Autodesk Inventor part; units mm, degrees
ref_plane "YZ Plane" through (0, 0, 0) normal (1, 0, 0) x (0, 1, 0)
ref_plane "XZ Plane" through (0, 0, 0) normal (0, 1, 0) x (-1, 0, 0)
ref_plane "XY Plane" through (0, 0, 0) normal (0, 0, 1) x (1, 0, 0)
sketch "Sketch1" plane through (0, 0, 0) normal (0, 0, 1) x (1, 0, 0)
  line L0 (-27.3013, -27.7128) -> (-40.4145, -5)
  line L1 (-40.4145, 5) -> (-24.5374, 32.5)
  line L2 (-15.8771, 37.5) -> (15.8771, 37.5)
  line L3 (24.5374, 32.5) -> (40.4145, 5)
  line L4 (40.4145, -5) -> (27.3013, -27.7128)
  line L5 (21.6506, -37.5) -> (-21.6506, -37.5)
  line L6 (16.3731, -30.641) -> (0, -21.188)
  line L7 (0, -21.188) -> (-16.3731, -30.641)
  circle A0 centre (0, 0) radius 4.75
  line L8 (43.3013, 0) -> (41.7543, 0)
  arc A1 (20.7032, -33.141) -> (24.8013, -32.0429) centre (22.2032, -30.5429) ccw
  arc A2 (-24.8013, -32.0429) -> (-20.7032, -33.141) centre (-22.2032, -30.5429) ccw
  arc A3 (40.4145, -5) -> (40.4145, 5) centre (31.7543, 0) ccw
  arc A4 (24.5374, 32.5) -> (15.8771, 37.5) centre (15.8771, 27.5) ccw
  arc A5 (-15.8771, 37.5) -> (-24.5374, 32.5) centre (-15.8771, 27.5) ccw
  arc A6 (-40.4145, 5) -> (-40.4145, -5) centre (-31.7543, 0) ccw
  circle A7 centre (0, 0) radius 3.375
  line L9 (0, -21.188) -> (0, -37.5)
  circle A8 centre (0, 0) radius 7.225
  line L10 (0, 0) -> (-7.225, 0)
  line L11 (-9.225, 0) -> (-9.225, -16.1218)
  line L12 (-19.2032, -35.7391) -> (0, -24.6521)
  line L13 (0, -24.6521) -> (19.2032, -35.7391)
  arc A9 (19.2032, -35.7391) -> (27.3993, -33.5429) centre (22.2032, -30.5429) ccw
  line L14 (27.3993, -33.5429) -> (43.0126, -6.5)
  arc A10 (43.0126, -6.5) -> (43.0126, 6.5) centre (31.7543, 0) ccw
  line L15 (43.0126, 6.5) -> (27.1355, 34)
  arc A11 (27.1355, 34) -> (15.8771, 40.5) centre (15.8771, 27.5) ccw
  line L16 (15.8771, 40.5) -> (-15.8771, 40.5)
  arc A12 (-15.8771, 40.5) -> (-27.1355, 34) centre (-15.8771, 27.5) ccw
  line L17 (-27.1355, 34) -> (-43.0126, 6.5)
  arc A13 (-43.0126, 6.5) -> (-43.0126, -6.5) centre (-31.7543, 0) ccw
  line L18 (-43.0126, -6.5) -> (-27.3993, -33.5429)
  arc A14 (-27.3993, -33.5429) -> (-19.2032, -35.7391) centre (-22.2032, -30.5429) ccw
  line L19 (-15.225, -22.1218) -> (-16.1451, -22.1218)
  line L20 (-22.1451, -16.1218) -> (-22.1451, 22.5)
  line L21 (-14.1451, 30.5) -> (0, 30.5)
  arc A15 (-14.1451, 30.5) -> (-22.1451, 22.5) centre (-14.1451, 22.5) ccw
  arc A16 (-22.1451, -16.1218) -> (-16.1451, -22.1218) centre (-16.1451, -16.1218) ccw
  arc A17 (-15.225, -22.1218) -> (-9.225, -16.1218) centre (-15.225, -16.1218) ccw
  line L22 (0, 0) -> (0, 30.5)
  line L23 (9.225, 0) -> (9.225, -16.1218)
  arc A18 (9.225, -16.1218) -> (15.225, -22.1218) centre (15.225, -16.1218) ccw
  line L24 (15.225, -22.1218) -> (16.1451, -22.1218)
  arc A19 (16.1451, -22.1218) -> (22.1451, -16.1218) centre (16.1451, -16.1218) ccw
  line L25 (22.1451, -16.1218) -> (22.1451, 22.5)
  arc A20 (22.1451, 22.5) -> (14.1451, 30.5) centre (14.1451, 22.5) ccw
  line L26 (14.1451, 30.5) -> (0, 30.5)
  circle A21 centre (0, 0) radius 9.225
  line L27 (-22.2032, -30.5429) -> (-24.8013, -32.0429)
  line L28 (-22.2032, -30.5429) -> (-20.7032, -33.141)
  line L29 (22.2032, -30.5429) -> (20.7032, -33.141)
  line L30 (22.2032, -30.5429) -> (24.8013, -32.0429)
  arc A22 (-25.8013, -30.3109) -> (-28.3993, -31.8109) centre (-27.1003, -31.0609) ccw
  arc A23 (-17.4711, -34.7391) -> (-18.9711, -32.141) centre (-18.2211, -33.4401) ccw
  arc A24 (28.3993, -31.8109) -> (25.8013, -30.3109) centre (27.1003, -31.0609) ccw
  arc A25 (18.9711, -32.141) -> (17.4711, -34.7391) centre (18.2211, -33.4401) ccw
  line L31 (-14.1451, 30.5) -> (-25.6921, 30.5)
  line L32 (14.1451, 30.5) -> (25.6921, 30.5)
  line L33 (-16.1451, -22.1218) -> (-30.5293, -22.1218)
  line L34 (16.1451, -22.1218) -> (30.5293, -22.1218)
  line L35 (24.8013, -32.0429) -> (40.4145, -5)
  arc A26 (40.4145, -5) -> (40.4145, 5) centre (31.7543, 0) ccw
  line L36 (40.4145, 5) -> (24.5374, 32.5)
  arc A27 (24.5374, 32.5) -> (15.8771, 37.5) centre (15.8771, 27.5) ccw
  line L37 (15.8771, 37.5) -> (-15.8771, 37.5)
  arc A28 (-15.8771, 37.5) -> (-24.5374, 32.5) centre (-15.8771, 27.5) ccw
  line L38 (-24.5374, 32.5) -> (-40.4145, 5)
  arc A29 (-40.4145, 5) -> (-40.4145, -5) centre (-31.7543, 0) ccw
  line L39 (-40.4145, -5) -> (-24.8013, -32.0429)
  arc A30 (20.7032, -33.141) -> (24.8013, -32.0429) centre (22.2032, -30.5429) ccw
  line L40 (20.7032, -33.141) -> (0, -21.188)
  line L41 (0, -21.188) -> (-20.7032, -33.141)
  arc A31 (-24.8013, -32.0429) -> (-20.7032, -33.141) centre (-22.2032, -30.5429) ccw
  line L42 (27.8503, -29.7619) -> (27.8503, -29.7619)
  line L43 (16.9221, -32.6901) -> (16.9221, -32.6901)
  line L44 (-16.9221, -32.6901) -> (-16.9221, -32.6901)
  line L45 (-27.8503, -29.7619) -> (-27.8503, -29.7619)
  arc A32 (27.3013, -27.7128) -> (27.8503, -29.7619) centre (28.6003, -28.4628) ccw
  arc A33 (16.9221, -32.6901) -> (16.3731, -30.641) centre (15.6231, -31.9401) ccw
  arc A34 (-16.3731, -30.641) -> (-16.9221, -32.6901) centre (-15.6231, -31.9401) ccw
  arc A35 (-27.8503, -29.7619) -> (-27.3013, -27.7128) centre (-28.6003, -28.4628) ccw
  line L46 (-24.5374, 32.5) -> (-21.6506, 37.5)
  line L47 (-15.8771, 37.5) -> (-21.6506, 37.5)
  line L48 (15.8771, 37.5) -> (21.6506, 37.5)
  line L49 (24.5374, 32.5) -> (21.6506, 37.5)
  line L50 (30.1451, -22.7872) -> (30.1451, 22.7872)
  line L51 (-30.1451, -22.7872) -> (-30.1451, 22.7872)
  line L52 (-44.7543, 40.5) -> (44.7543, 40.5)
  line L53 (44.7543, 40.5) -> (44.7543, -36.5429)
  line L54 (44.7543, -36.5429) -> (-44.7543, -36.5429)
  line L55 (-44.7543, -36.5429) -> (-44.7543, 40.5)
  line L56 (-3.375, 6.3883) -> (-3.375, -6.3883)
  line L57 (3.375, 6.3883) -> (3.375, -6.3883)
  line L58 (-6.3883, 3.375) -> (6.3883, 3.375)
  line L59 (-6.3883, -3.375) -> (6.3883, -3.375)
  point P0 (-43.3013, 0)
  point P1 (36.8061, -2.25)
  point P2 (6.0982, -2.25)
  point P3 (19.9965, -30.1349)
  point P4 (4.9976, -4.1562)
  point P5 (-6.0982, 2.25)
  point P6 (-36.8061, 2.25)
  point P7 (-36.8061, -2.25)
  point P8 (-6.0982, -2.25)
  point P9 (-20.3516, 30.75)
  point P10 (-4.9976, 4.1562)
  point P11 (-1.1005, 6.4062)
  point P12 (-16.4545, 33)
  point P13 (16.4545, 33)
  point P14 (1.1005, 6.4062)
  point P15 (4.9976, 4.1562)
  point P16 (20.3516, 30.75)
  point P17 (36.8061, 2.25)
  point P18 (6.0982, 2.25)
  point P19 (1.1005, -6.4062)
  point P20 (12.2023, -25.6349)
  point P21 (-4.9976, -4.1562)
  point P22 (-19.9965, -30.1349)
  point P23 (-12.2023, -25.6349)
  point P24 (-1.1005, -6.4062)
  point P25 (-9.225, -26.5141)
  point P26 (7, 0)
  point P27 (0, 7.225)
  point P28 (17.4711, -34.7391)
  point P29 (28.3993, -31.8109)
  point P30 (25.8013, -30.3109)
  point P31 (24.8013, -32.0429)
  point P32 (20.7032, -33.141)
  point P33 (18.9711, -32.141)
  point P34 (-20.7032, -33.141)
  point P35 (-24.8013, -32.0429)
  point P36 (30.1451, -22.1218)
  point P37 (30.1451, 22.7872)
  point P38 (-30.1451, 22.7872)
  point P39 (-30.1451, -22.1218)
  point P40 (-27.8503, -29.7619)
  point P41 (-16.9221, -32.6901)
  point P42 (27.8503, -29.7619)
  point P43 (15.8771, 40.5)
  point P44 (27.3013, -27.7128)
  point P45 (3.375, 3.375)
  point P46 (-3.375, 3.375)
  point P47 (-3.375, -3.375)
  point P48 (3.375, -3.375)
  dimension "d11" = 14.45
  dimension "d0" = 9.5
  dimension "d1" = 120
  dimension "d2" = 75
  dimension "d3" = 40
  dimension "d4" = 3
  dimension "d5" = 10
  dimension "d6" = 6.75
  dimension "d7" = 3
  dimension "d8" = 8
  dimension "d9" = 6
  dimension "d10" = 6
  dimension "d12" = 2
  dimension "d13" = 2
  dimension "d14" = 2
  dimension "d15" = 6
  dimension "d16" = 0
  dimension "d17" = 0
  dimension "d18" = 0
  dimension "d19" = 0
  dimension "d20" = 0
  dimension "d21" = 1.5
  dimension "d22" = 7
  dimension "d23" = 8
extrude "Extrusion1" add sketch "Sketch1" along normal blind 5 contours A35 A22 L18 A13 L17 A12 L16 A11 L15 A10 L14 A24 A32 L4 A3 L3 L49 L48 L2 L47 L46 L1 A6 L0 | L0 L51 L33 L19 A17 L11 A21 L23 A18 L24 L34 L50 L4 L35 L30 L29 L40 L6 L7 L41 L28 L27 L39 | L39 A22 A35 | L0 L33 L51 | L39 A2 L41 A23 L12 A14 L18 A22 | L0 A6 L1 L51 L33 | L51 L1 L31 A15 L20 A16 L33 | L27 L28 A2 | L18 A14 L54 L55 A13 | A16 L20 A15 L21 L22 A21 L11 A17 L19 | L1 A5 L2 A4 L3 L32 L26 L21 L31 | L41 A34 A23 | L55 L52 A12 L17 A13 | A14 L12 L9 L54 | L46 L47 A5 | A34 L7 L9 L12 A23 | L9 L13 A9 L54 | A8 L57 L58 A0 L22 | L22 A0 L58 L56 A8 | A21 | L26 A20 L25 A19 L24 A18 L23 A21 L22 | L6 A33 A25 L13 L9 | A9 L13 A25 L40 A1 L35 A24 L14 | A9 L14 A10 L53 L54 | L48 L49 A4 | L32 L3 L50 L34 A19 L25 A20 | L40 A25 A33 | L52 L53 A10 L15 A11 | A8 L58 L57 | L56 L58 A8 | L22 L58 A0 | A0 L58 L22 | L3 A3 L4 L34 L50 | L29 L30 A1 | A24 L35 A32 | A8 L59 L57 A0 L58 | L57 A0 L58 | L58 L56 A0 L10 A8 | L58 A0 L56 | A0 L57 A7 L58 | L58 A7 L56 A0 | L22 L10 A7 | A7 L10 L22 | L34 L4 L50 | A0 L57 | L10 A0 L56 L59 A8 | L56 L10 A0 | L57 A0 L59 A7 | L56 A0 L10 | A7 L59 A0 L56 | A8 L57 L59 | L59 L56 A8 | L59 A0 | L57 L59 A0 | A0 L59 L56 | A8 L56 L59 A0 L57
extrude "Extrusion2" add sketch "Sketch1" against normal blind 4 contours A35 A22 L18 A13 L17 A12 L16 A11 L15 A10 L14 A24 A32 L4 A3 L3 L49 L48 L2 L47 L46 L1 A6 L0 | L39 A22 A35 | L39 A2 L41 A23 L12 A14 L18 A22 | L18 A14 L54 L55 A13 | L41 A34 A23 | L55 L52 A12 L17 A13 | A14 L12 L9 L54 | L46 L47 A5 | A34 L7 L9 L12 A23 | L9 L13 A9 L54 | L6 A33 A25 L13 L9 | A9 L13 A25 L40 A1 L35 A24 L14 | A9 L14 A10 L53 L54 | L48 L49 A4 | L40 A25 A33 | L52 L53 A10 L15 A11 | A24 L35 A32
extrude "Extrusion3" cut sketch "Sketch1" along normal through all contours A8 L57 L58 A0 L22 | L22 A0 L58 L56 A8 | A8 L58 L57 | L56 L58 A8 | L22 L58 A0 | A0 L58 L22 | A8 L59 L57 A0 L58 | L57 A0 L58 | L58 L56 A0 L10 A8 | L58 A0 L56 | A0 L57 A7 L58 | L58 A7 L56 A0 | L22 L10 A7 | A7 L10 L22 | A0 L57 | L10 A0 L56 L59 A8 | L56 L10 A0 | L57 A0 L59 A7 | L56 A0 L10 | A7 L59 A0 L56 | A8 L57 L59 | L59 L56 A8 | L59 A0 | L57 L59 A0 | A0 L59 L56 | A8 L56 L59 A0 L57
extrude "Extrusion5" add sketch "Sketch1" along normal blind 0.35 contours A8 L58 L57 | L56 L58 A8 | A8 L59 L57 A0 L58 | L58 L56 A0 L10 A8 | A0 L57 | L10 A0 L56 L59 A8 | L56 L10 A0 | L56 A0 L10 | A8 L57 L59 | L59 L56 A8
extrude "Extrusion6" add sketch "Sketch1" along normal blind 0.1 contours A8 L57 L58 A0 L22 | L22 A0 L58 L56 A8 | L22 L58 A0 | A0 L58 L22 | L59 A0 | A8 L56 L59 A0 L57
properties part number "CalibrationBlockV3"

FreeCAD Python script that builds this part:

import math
import FreeCAD as App
import Part
import Sketcher
Q = App.Units.Quantity

doc = App.newDocument("Part")
body = doc.addObject("PartDesign::Body", "Body")

sketch1 = body.newObject("Sketcher::SketchObject", "Sketch")
sketch1.AttachmentSupport = (doc.getObject("XY_Plane"), [""])
sketch1.MapMode = "FlatFace"
sketch1.addGeometry(Part.LineSegment(App.Vector(-45, 40, 0), App.Vector(-45, -37, 0)), False)
sketch1.addGeometry(Part.LineSegment(App.Vector(-45, -37, 0), App.Vector(45, -37, 0)), False)
sketch1.addGeometry(Part.LineSegment(App.Vector(45, -37, 0), App.Vector(45, 40, 0)), False)
sketch1.addGeometry(Part.LineSegment(App.Vector(45, 40, 0), App.Vector(-45, 40, 0)), False)
sketch1.addConstraint(Sketcher.Constraint("Coincident", 0, 2, 1, 1))
sketch1.addConstraint(Sketcher.Constraint("Coincident", 1, 2, 2, 1))
sketch1.addConstraint(Sketcher.Constraint("Coincident", 2, 2, 3, 1))
sketch1.addConstraint(Sketcher.Constraint("Coincident", 3, 2, 0, 1))
sketch1.addConstraint(Sketcher.Constraint("Vertical", 0))
sketch1.addConstraint(Sketcher.Constraint("Horizontal", 1))
sketch1.addConstraint(Sketcher.Constraint("Vertical", 2))
sketch1.addConstraint(Sketcher.Constraint("Horizontal", 3))
sketch1.addConstraint(Sketcher.Constraint("DistanceY", -1, 1, 2, 2, 40.5))
sketch1.addConstraint(Sketcher.Constraint("DistanceY", 0, 2, 0, 1, 77.043))
sketch1.addConstraint(Sketcher.Constraint("DistanceX", 1, 1, 1, 2, 89.5086))
sketch1.addConstraint(Sketcher.Constraint("DistanceX", 0, 2, -1, 1, 44.7543))
pad1 = body.newObject("PartDesign::Pad", "Pad")
pad1.Profile = sketch1
pad1.Length = 5

sketch2 = body.newObject("Sketcher::SketchObject", "Sketch001")
sketch2.AttachmentSupport = (doc.getObject("XY_Plane"), [""])
sketch2.MapMode = "FlatFace"
sketch2.addGeometry(Part.LineSegment(App.Vector(-44.8, 40.5, 0), App.Vector(-44.8, -36.5, 0)), False)
sketch2.addGeometry(Part.LineSegment(App.Vector(-44.8, -36.5, 0), App.Vector(44.8, -36.5, 0)), False)
sketch2.addGeometry(Part.LineSegment(App.Vector(44.8, -36.5, 0), App.Vector(44.8, 40.5, 0)), False)
sketch2.addGeometry(Part.LineSegment(App.Vector(44.8, 40.5, 0), App.Vector(-44.8, 40.5, 0)), False)
sketch2.addGeometry(Part.LineSegment(App.Vector(27.3, -27.7, 0), App.Vector(24.8, -32, 0)), False)
sketch2.addGeometry(Part.ArcOfCircle(Part.Circle(App.Vector(22.2, -30.5, 0), App.Vector(0, 0, 1), 3), math.radians(-120), math.radians(-30)), False)
sketch2.addGeometry(Part.LineSegment(App.Vector(20.7, -33.1, 0), App.Vector(16.4, -30.6, 0)), False)
sketch2.addGeometry(Part.LineSegment(App.Vector(16.4, -30.6, 0), App.Vector(0, -21.2, 0)), False)
sketch2.addGeometry(Part.LineSegment(App.Vector(0, -21.2, 0), App.Vector(-16.4, -30.6, 0)), False)
sketch2.addGeometry(Part.LineSegment(App.Vector(-16.4, -30.6, 0), App.Vector(-20.7, -33.1, 0)), False)
sketch2.addGeometry(Part.ArcOfCircle(Part.Circle(App.Vector(-22.2, -30.5, 0), App.Vector(0, 0, 1), 3), math.radians(-150), math.radians(-60)), False)
sketch2.addGeometry(Part.LineSegment(App.Vector(-24.8, -32, 0), App.Vector(-27.3, -27.7, 0)), False)
sketch2.addGeometry(Part.LineSegment(App.Vector(-27.3, -27.7, 0), App.Vector(-40.4, -5, 0)), False)
sketch2.addGeometry(Part.ArcOfCircle(Part.Circle(App.Vector(-31.8, 0, 0), App.Vector(0, 0, 1), 10), math.radians(150), math.radians(210)), False)
sketch2.addGeometry(Part.LineSegment(App.Vector(-40.4, 5, 0), App.Vector(-24.5, 32.5, 0)), False)
sketch2.addGeometry(Part.ArcOfCircle(Part.Circle(App.Vector(-15.9, 27.5, 0), App.Vector(0, 0, 1), 10), math.radians(90), math.radians(150)), False)
sketch2.addGeometry(Part.LineSegment(App.Vector(-15.9, 37.5, 0), App.Vector(15.9, 37.5, 0)), False)
sketch2.addGeometry(Part.ArcOfCircle(Part.Circle(App.Vector(15.9, 27.5, 0), App.Vector(0, 0, 1), 10), math.radians(30), math.radians(90)), False)
sketch2.addGeometry(Part.LineSegment(App.Vector(24.5, 32.5, 0), App.Vector(40.4, 5, 0)), False)
sketch2.addGeometry(Part.ArcOfCircle(Part.Circle(App.Vector(31.8, 0, 0), App.Vector(0, 0, 1), 10), math.radians(-30), math.radians(30)), False)
sketch2.addGeometry(Part.LineSegment(App.Vector(40.4, -5, 0), App.Vector(27.3, -27.7, 0)), False)
sketch2.addConstraint(Sketcher.Constraint("Coincident", 0, 2, 1, 1))
sketch2.addConstraint(Sketcher.Constraint("Coincident", 1, 2, 2, 1))
sketch2.addConstraint(Sketcher.Constraint("Coincident", 2, 2, 3, 1))
sketch2.addConstraint(Sketcher.Constraint("Coincident", 3, 2, 0, 1))
sketch2.addConstraint(Sketcher.Constraint("Tangent", 4, 2, 5, 2))
sketch2.addConstraint(Sketcher.Constraint("Tangent", 5, 1, 6, 1))
sketch2.addConstraint(Sketcher.Constraint("Coincident", 6, 2, 7, 1))
sketch2.addConstraint(Sketcher.Constraint("Coincident", 7, 2, 8, 1))
sketch2.addConstraint(Sketcher.Constraint("Coincident", 8, 2, 9, 1))
sketch2.addConstraint(Sketcher.Constraint("Tangent", 9, 2, 10, 2))
sketch2.addConstraint(Sketcher.Constraint("Tangent", 10, 1, 11, 1))
sketch2.addConstraint(Sketcher.Constraint("Coincident", 11, 2, 12, 1))
sketch2.addConstraint(Sketcher.Constraint("Tangent", 12, 2, 13, 2))
sketch2.addConstraint(Sketcher.Constraint("Tangent", 13, 1, 14, 1))
sketch2.addConstraint(Sketcher.Constraint("Tangent", 14, 2, 15, 2))
sketch2.addConstraint(Sketcher.Constraint("Tangent", 15, 1, 16, 1))
sketch2.addConstraint(Sketcher.Constraint("Tangent", 16, 2, 17, 2))
sketch2.addConstraint(Sketcher.Constraint("Tangent", 17, 1, 18, 1))
sketch2.addConstraint(Sketcher.Constraint("Tangent", 18, 2, 19, 2))
sketch2.addConstraint(Sketcher.Constraint("Tangent", 19, 1, 20, 1))
sketch2.addConstraint(Sketcher.Constraint("Coincident", 20, 2, 4, 1))
sketch2.addConstraint(Sketcher.Constraint("Vertical", 0))
sketch2.addConstraint(Sketcher.Constraint("Horizontal", 1))
sketch2.addConstraint(Sketcher.Constraint("Vertical", 2))
sketch2.addConstraint(Sketcher.Constraint("Horizontal", 3))
sketch2.addConstraint(Sketcher.Constraint("Horizontal", 16))
sketch2.addConstraint(Sketcher.Constraint("Equal", 5, 10))
sketch2.addConstraint(Sketcher.Constraint("Equal", 13, 15))
sketch2.addConstraint(Sketcher.Constraint("Equal", 15, 17))
sketch2.addConstraint(Sketcher.Constraint("Equal", 17, 19))
sketch2.addConstraint(Sketcher.Constraint("Symmetric", 13, 3, 19, 3, -1, 1))
sketch2.addConstraint(Sketcher.Constraint("Symmetric", 5, 3, 10, 3, -2))
sketch2.addConstraint(Sketcher.Constraint("Symmetric", 6, 2, 8, 2, -2))
sketch2.addConstraint(Sketcher.Constraint("Symmetric", 14, 2, 17, 1, -2))
sketch2.addConstraint(Sketcher.Constraint("Symmetric", 11, 2, 20, 2, -2))
sketch2.addConstraint(Sketcher.Constraint("PointOnObject", 7, 2, -2))
sketch2.addConstraint(Sketcher.Constraint("Perpendicular", 4, 6))
sketch2.addConstraint(Sketcher.Constraint("Parallel", 6, 7))
sketch2.addConstraint(Sketcher.Constraint("Parallel", 11, 12))
sketch2.addConstraint(Sketcher.Constraint("Perpendicular", 7, 14))
sketch2.addConstraint(Sketcher.Constraint("Equal", 4, 6))
sketch2.addConstraint(Sketcher.Constraint("Radius", 5, 3.0))
sketch2.addConstraint(Sketcher.Constraint("Radius", 13, 10.0))
sketch2.addConstraint(Sketcher.Constraint("Angle", 4, Q("-120.0002 deg")))
sketch2.addConstraint(Sketcher.Constraint("DistanceY", 0, 2, 10, 3, 6.0))
sketch2.addConstraint(Sketcher.Constraint("DistanceY", 14, 2, 3, 2, 8.0))
sketch2.addConstraint(Sketcher.Constraint("Distance", 4, 5.0))
sketch2.addConstraint(Sketcher.Constraint("DistanceX", 0, 2, 13, 3, 13.0))
sketch2.addConstraint(Sketcher.Constraint("DistanceX", 19, 3, 1, 2, 13.0))
sketch2.addConstraint(Sketcher.Constraint("DistanceY", -1, 1, 15, 3, 27.5))
sketch2.addConstraint(Sketcher.Constraint("DistanceY", 0, 2, 0, 1, 77.043))
sketch2.addConstraint(Sketcher.Constraint("Distance", 7, 18.906))
pad2 = body.newObject("PartDesign::Pad", "Pad001")
pad2.Profile = sketch2
pad2.Length = 4
pad2.Reversed = True

sketch3 = body.newObject("Sketcher::SketchObject", "Sketch002")
sketch3.AttachmentSupport = (doc.getObject("XY_Plane"), [""])
sketch3.MapMode = "FlatFace"
sketch3.addGeometry(Part.Circle(App.Vector(0, 0, 0), App.Vector(0, 0, 1), 7), False)
sketch3.addConstraint(Sketcher.Constraint("Coincident", 0, 3, -1, 1))
sketch3.addConstraint(Sketcher.Constraint("Diameter", 0, 14.45))
pocket1 = body.newObject("PartDesign::Pocket", "Pocket")
pocket1.Profile = sketch3
pocket1.Type = "ThroughAll"
pocket1.Reversed = True

sketch4 = body.newObject("Sketcher::SketchObject", "Sketch003")
sketch4.AttachmentSupport = (doc.getObject("XY_Plane"), [""])
sketch4.MapMode = "FlatFace"
sketch4.addGeometry(Part.LineSegment(App.Vector(3, 6, 0), App.Vector(3, -6, 0)), False)
sketch4.addGeometry(Part.ArcOfCircle(Part.Circle(App.Vector(0, 0, 0), App.Vector(0, 0, 1), 7), math.radians(-62), math.radians(62)), False)
sketch4.addGeometry(Part.ArcOfCircle(Part.Circle(App.Vector(0, 0, 0), App.Vector(0, 0, 1), 7), math.radians(118), math.radians(242)), False)
sketch4.addGeometry(Part.LineSegment(App.Vector(-3, 6, 0), App.Vector(-3, -6, 0)), False)
sketch4.addConstraint(Sketcher.Constraint("Coincident", 0, 1, 1, 2))
sketch4.addConstraint(Sketcher.Constraint("Coincident", 1, 1, 0, 2))
sketch4.addConstraint(Sketcher.Constraint("Coincident", 2, 1, 3, 1))
sketch4.addConstraint(Sketcher.Constraint("Coincident", 3, 2, 2, 2))
sketch4.addConstraint(Sketcher.Constraint("Vertical", 0))
sketch4.addConstraint(Sketcher.Constraint("Vertical", 3))
sketch4.addConstraint(Sketcher.Constraint("Coincident", 1, 3, -1, 1))
sketch4.addConstraint(Sketcher.Constraint("Coincident", 2, 3, -1, 1))
sketch4.addConstraint(Sketcher.Constraint("Equal", 1, 2))
sketch4.addConstraint(Sketcher.Constraint("Horizontal", 0, 1, 2, 1))
sketch4.addConstraint(Sketcher.Constraint("Radius", 1, 7.225))
sketch4.addConstraint(Sketcher.Constraint("DistanceX", 2, 1, 0, 1, 6.75))
pad3 = body.newObject("PartDesign::Pad", "Pad002")
pad3.Profile = sketch4
pad3.Length = 0.35

sketch5 = body.newObject("Sketcher::SketchObject", "Sketch004")
sketch5.AttachmentSupport = (doc.getObject("XY_Plane"), [""])
sketch5.MapMode = "FlatFace"
sketch5.addGeometry(Part.ArcOfCircle(Part.Circle(App.Vector(0, 0, 0), App.Vector(0, 0, 1), 7.2), math.radians(62), math.radians(118)), False)
sketch5.addGeometry(Part.LineSegment(App.Vector(-3.4, 6.4, 0), App.Vector(-3.4, 3.4, 0)), False)
sketch5.addGeometry(Part.LineSegment(App.Vector(-3.4, 3.4, 0), App.Vector(3.4, 3.4, 0)), False)
sketch5.addGeometry(Part.LineSegment(App.Vector(3.4, 3.4, 0), App.Vector(3.4, 6.4, 0)), False)
sketch5.addGeometry(Part.LineSegment(App.Vector(-3.4, -3.4, 0), App.Vector(-3.4, -6.4, 0)), False)
sketch5.addGeometry(Part.ArcOfCircle(Part.Circle(App.Vector(0, 0, 0), App.Vector(0, 0, 1), 7.2), math.radians(-118), math.radians(-62)), False)
sketch5.addGeometry(Part.LineSegment(App.Vector(3.4, -6.4, 0), App.Vector(3.4, -3.4, 0)), False)
sketch5.addGeometry(Part.LineSegment(App.Vector(3.4, -3.4, 0), App.Vector(-3.4, -3.4, 0)), False)
sketch5.addConstraint(Sketcher.Constraint("Coincident", 0, 2, 1, 1))
sketch5.addConstraint(Sketcher.Constraint("Coincident", 1, 2, 2, 1))
sketch5.addConstraint(Sketcher.Constraint("Coincident", 2, 2, 3, 1))
sketch5.addConstraint(Sketcher.Constraint("Coincident", 3, 2, 0, 1))
sketch5.addConstraint(Sketcher.Constraint("Coincident", 4, 2, 5, 1))
sketch5.addConstraint(Sketcher.Constraint("Coincident", 5, 2, 6, 1))
sketch5.addConstraint(Sketcher.Constraint("Coincident", 6, 2, 7, 1))
sketch5.addConstraint(Sketcher.Constraint("Coincident", 7, 2, 4, 1))
sketch5.addConstraint(Sketcher.Constraint("Vertical", 1))
sketch5.addConstraint(Sketcher.Constraint("Horizontal", 2))
sketch5.addConstraint(Sketcher.Constraint("Vertical", 3))
sketch5.addConstraint(Sketcher.Constraint("Vertical", 4))
sketch5.addConstraint(Sketcher.Constraint("Vertical", 6))
sketch5.addConstraint(Sketcher.Constraint("Horizontal", 7))
sketch5.addConstraint(Sketcher.Constraint("Coincident", 0, 3, -1, 1))
sketch5.addConstraint(Sketcher.Constraint("Coincident", 5, 3, -1, 1))
sketch5.addConstraint(Sketcher.Constraint("Equal", 0, 5))
sketch5.addConstraint(Sketcher.Constraint("Symmetric", 1, 2, 6, 2, -1, 1))
sketch5.addConstraint(Sketcher.Constraint("Horizontal", 0, 2, 3, 2))
sketch5.addConstraint(Sketcher.Constraint("Horizontal", 4, 2, 5, 2))
sketch5.addConstraint(Sketcher.Constraint("Radius", 0, 7.225))
sketch5.addConstraint(Sketcher.Constraint("DistanceX", 2, 1, 2, 2, 6.75))
sketch5.addConstraint(Sketcher.Constraint("DistanceY", 6, 2, 2, 2, 6.75))
pad4 = body.newObject("PartDesign::Pad", "Pad003")
pad4.Profile = sketch5
pad4.Length = 0.1

doc.recompute()
